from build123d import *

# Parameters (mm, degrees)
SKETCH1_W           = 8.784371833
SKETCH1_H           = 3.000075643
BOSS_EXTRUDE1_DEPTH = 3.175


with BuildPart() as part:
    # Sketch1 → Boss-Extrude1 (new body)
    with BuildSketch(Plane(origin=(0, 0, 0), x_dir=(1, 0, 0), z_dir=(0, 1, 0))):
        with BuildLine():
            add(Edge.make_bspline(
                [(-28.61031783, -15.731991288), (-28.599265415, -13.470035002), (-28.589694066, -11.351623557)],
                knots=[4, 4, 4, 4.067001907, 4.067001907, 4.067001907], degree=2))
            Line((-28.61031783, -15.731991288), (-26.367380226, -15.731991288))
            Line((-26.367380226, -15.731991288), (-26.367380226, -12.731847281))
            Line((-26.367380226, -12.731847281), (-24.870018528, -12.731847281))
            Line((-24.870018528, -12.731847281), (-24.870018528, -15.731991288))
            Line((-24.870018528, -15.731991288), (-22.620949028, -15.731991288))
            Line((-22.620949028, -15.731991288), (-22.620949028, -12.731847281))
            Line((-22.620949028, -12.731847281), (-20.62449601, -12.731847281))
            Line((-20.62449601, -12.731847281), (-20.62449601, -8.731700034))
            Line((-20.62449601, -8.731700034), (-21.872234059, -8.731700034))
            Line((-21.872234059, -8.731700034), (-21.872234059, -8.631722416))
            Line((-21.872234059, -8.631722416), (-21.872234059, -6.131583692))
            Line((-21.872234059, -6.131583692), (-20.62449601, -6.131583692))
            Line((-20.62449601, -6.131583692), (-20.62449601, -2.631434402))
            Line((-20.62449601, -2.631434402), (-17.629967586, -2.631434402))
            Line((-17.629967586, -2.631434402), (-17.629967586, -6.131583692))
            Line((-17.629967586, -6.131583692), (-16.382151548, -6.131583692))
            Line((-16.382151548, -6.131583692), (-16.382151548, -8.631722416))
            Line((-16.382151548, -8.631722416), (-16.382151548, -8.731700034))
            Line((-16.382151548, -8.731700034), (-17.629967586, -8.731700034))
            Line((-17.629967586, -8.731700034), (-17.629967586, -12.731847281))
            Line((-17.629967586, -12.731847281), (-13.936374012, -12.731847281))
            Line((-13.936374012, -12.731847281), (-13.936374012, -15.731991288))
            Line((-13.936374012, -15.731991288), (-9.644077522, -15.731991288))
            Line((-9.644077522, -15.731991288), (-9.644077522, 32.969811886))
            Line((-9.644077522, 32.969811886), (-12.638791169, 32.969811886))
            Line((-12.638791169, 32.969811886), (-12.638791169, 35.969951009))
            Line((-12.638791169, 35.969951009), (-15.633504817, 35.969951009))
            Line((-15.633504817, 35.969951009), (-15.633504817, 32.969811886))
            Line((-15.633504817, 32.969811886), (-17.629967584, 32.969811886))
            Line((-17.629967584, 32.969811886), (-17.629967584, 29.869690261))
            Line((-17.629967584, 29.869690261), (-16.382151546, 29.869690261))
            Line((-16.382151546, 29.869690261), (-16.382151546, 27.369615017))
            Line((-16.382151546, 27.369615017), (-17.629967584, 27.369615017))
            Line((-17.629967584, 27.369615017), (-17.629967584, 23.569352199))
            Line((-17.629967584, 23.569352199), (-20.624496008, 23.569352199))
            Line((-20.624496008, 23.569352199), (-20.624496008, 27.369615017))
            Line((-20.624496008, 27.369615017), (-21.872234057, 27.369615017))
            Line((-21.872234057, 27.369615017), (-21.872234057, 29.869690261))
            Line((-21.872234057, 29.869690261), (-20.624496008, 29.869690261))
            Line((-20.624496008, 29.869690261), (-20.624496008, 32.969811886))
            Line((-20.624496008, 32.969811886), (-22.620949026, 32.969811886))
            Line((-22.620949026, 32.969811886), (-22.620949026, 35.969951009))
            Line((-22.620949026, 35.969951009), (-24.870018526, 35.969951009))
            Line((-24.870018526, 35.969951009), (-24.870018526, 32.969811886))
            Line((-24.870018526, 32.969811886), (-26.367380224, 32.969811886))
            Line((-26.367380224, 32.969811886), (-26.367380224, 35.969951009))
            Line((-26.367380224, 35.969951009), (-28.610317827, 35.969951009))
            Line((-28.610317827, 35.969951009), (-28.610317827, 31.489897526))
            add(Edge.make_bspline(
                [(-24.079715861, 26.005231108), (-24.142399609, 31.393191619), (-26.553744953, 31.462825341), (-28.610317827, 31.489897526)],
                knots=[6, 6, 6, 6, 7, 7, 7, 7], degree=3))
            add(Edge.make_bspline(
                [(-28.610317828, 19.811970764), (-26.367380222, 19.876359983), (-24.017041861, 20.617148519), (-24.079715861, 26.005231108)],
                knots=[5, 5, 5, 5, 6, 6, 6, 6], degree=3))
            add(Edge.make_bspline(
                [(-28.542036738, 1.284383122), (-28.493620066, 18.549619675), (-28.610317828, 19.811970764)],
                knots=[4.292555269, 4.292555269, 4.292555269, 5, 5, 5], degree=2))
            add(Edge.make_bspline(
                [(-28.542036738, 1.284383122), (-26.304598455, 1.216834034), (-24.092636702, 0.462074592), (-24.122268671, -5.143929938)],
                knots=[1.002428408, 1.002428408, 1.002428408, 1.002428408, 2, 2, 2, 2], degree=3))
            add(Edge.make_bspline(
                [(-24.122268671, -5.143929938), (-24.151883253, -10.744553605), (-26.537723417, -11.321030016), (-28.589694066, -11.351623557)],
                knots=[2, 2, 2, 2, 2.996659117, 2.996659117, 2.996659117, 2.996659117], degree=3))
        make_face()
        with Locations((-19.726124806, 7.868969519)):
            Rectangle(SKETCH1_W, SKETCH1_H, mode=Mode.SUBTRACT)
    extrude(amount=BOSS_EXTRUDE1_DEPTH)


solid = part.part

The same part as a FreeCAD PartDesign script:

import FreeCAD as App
import Part
import Sketcher

V = App.Vector
Q = App.Units.Quantity

doc = App.newDocument("Part")
body = doc.addObject("PartDesign::Body", "Body")

sketch1 = doc.addObject("Sketcher::SketchObject", "Sketch")
body.addObject(sketch1)
sketch1.AttachmentSupport = (doc.XZ_Plane, [""])
sketch1.MapMode = "FlatFace"
sketch1.addGeometry([
    Part.BSplineCurve([V(-28.610318, 15.731991, 0), V(-28.599265, 13.470035, 0), V(-28.589694, 11.351624, 0)], [3, 3], [4, 4.067001907], False, 2, [1, 1, 1], False),
    Part.LineSegment(V(-28.610318, 15.731991, 0), V(-26.36738, 15.731991, 0)),
    Part.LineSegment(V(-26.36738, 15.731991, 0), V(-26.36738, 12.731847, 0)),
    Part.LineSegment(V(-26.36738, 12.731847, 0), V(-24.870019, 12.731847, 0)),
    Part.LineSegment(V(-24.870019, 12.731847, 0), V(-24.870019, 15.731991, 0)),
    Part.LineSegment(V(-24.870019, 15.731991, 0), V(-22.620949, 15.731991, 0)),
    Part.LineSegment(V(-22.620949, 15.731991, 0), V(-22.620949, 12.731847, 0)),
    Part.LineSegment(V(-22.620949, 12.731847, 0), V(-20.624496, 12.731847, 0)),
    Part.LineSegment(V(-20.624496, 12.731847, 0), V(-20.624496, 8.7317, 0)),
    Part.LineSegment(V(-20.624496, 8.7317, 0), V(-21.872234, 8.7317, 0)),
    Part.LineSegment(V(-21.872234, 8.7317, 0), V(-21.872234, 6.131584, 0)),
    Part.LineSegment(V(-21.872234, 6.131584, 0), V(-20.624496, 6.131584, 0)),
    Part.LineSegment(V(-20.624496, 6.131584, 0), V(-20.624496, 2.631434, 0)),
    Part.LineSegment(V(-20.624496, 2.631434, 0), V(-17.629968, 2.631434, 0)),
    Part.LineSegment(V(-17.629968, 2.631434, 0), V(-17.629968, 6.131584, 0)),
    Part.LineSegment(V(-17.629968, 6.131584, 0), V(-16.382152, 6.131584, 0)),
    Part.LineSegment(V(-16.382152, 6.131584, 0), V(-16.382152, 8.7317, 0)),
    Part.LineSegment(V(-16.382152, 8.7317, 0), V(-17.629968, 8.7317, 0)),
    Part.LineSegment(V(-17.629968, 8.7317, 0), V(-17.629968, 12.731847, 0)),
    Part.LineSegment(V(-17.629968, 12.731847, 0), V(-13.936374, 12.731847, 0)),
    Part.LineSegment(V(-13.936374, 12.731847, 0), V(-13.936374, 15.731991, 0)),
    Part.LineSegment(V(-13.936374, 15.731991, 0), V(-9.644078, 15.731991, 0)),
    Part.LineSegment(V(-9.644078, 15.731991, 0), V(-9.644078, -32.969812, 0)),
    Part.LineSegment(V(-9.644078, -32.969812, 0), V(-12.638791, -32.969812, 0)),
    Part.LineSegment(V(-12.638791, -32.969812, 0), V(-12.638791, -35.969951, 0)),
    Part.LineSegment(V(-12.638791, -35.969951, 0), V(-15.633505, -35.969951, 0)),
    Part.LineSegment(V(-15.633505, -35.969951, 0), V(-15.633505, -32.969812, 0)),
    Part.LineSegment(V(-15.633505, -32.969812, 0), V(-17.629968, -32.969812, 0)),
    Part.LineSegment(V(-17.629968, -32.969812, 0), V(-17.629968, -29.86969, 0)),
    Part.LineSegment(V(-17.629968, -29.86969, 0), V(-16.382152, -29.86969, 0)),
    Part.LineSegment(V(-16.382152, -29.86969, 0), V(-16.382152, -27.369615, 0)),
    Part.LineSegment(V(-16.382152, -27.369615, 0), V(-17.629968, -27.369615, 0)),
    Part.LineSegment(V(-17.629968, -27.369615, 0), V(-17.629968, -23.569352, 0)),
    Part.LineSegment(V(-17.629968, -23.569352, 0), V(-20.624496, -23.569352, 0)),
    Part.LineSegment(V(-20.624496, -23.569352, 0), V(-20.624496, -27.369615, 0)),
    Part.LineSegment(V(-20.624496, -27.369615, 0), V(-21.872234, -27.369615, 0)),
    Part.LineSegment(V(-21.872234, -27.369615, 0), V(-21.872234, -29.86969, 0)),
    Part.LineSegment(V(-21.872234, -29.86969, 0), V(-20.624496, -29.86969, 0)),
    Part.LineSegment(V(-20.624496, -29.86969, 0), V(-20.624496, -32.969812, 0)),
    Part.LineSegment(V(-20.624496, -32.969812, 0), V(-22.620949, -32.969812, 0)),
    Part.LineSegment(V(-22.620949, -32.969812, 0), V(-22.620949, -35.969951, 0)),
    Part.LineSegment(V(-22.620949, -35.969951, 0), V(-24.870019, -35.969951, 0)),
    Part.LineSegment(V(-24.870019, -35.969951, 0), V(-24.870019, -32.969812, 0)),
    Part.LineSegment(V(-24.870019, -32.969812, 0), V(-26.36738, -32.969812, 0)),
    Part.LineSegment(V(-26.36738, -32.969812, 0), V(-26.36738, -35.969951, 0)),
    Part.LineSegment(V(-26.36738, -35.969951, 0), V(-28.610318, -35.969951, 0)),
    Part.LineSegment(V(-28.610318, -35.969951, 0), V(-28.610318, -31.489898, 0)),
    Part.BSplineCurve([V(-24.079716, -26.005231, 0), V(-24.1424, -31.393192, 0), V(-26.553745, -31.462825, 0), V(-28.610318, -31.489898, 0)], [4, 4], [6, 7], False, 3, [1, 1, 1, 1], False),
    Part.BSplineCurve([V(-28.610318, -19.811971, 0), V(-26.36738, -19.87636, 0), V(-24.017042, -20.617149, 0), V(-24.079716, -26.005231, 0)], [4, 4], [5, 6], False, 3, [1, 1, 1, 1], False),
    Part.BSplineCurve([V(-28.542037, -1.284383, 0), V(-28.49362, -18.54962, 0), V(-28.610318, -19.811971, 0)], [3, 3], [4.292555269, 5], False, 2, [1, 1, 1], False),
    Part.BSplineCurve([V(-28.542037, -1.284383, 0), V(-26.304598, -1.216834, 0), V(-24.092637, -0.462075, 0), V(-24.122269, 5.14393, 0)], [4, 4], [1.002428408, 2], False, 3, [1, 1, 1, 1], False),
    Part.BSplineCurve([V(-24.122269, 5.14393, 0), V(-24.151883, 10.744554, 0), V(-26.537723, 11.32103, 0), V(-28.589694, 11.351624, 0)], [4, 4], [2, 2.996659117], False, 3, [1, 1, 1, 1], False),
    Part.LineSegment(V(-24.118311, -6.368932, 0), V(-24.118311, -9.369007, 0)),
    Part.LineSegment(V(-24.118311, -9.369007, 0), V(-15.333939, -9.369007, 0)),
    Part.LineSegment(V(-15.333939, -9.369007, 0), V(-15.333939, -6.368932, 0)),
    Part.LineSegment(V(-15.333939, -6.368932, 0), V(-24.118311, -6.368932, 0)),
], False)
sketch1.addConstraint([
    Sketcher.Constraint("Block", 0),
    Sketcher.Constraint("Block", 47),
    Sketcher.Constraint("Block", 48),
    Sketcher.Constraint("Block", 49),
    Sketcher.Constraint("Block", 50),
    Sketcher.Constraint("Block", 51),
    Sketcher.Constraint("Coincident", 0, 1, 1, 1),
    Sketcher.Constraint("Coincident", 1, 2, 2, 1),
    Sketcher.Constraint("Coincident", 2, 2, 3, 1),
    Sketcher.Constraint("Coincident", 3, 2, 4, 1),
    Sketcher.Constraint("Coincident", 4, 2, 5, 1),
    Sketcher.Constraint("Coincident", 5, 2, 6, 1),
    Sketcher.Constraint("Coincident", 6, 2, 7, 1),
    Sketcher.Constraint("Coincident", 7, 2, 8, 1),
    Sketcher.Constraint("Coincident", 8, 2, 9, 1),
    Sketcher.Constraint("Coincident", 9, 2, 10, 1),
    Sketcher.Constraint("Coincident", 10, 2, 11, 1),
    Sketcher.Constraint("Coincident", 11, 2, 12, 1),
    Sketcher.Constraint("Coincident", 12, 2, 13, 1),
    Sketcher.Constraint("Coincident", 13, 2, 14, 1),
    Sketcher.Constraint("Coincident", 14, 2, 15, 1),
    Sketcher.Constraint("Coincident", 15, 2, 16, 1),
    Sketcher.Constraint("Coincident", 16, 2, 17, 1),
    Sketcher.Constraint("Coincident", 17, 2, 18, 1),
    Sketcher.Constraint("Coincident", 18, 2, 19, 1),
    Sketcher.Constraint("Coincident", 19, 2, 20, 1),
    Sketcher.Constraint("Coincident", 20, 2, 21, 1),
    Sketcher.Constraint("Coincident", 21, 2, 22, 1),
    Sketcher.Constraint("Coincident", 22, 2, 23, 1),
    Sketcher.Constraint("Coincident", 23, 2, 24, 1),
    Sketcher.Constraint("Coincident", 24, 2, 25, 1),
    Sketcher.Constraint("Coincident", 25, 2, 26, 1),
    Sketcher.Constraint("Coincident", 26, 2, 27, 1),
    Sketcher.Constraint("Coincident", 27, 2, 28, 1),
    Sketcher.Constraint("Coincident", 28, 2, 29, 1),
    Sketcher.Constraint("Coincident", 29, 2, 30, 1),
    Sketcher.Constraint("Coincident", 30, 2, 31, 1),
    Sketcher.Constraint("Coincident", 31, 2, 32, 1),
    Sketcher.Constraint("Coincident", 32, 2, 33, 1),
    Sketcher.Constraint("Coincident", 33, 2, 34, 1),
    Sketcher.Constraint("Coincident", 34, 2, 35, 1),
    Sketcher.Constraint("Coincident", 35, 2, 36, 1),
    Sketcher.Constraint("Coincident", 36, 2, 37, 1),
    Sketcher.Constraint("Coincident", 37, 2, 38, 1),
    Sketcher.Constraint("Coincident", 38, 2, 39, 1),
    Sketcher.Constraint("Coincident", 39, 2, 40, 1),
    Sketcher.Constraint("Coincident", 40, 2, 41, 1),
    Sketcher.Constraint("Coincident", 41, 2, 42, 1),
    Sketcher.Constraint("Coincident", 42, 2, 43, 1),
    Sketcher.Constraint("Coincident", 43, 2, 44, 1),
    Sketcher.Constraint("Coincident", 44, 2, 45, 1),
    Sketcher.Constraint("Coincident", 45, 2, 46, 1),
    Sketcher.Constraint("Coincident", 46, 2, 47, 2),
    Sketcher.Constraint("Coincident", 52, 2, 53, 1),
    Sketcher.Constraint("Coincident", 53, 2, 54, 1),
    Sketcher.Constraint("Coincident", 54, 2, 55, 1),
    Sketcher.Constraint("Coincident", 55, 2, 52, 1),
    Sketcher.Constraint("Horizontal", 1),
    Sketcher.Constraint("Vertical", 2),
    Sketcher.Constraint("Horizontal", 3),
    Sketcher.Constraint("Vertical", 4),
    Sketcher.Constraint("Horizontal", 5),
    Sketcher.Constraint("Vertical", 6),
    Sketcher.Constraint("Horizontal", 7),
    Sketcher.Constraint("Vertical", 8),
    Sketcher.Constraint("Horizontal", 9),
    Sketcher.Constraint("Vertical", 10),
    Sketcher.Constraint("Horizontal", 11),
    Sketcher.Constraint("Vertical", 12),
    Sketcher.Constraint("Horizontal", 13),
    Sketcher.Constraint("Vertical", 14),
    Sketcher.Constraint("Horizontal", 15),
    Sketcher.Constraint("Vertical", 16),
    Sketcher.Constraint("Horizontal", 17),
    Sketcher.Constraint("Vertical", 18),
    Sketcher.Constraint("Horizontal", 19),
    Sketcher.Constraint("Vertical", 20),
    Sketcher.Constraint("Horizontal", 21),
    Sketcher.Constraint("Vertical", 22),
    Sketcher.Constraint("Horizontal", 23),
    Sketcher.Constraint("Vertical", 24),
    Sketcher.Constraint("Horizontal", 25),
    Sketcher.Constraint("Vertical", 26),
    Sketcher.Constraint("Horizontal", 27),
    Sketcher.Constraint("Vertical", 28),
    Sketcher.Constraint("Horizontal", 29),
    Sketcher.Constraint("Vertical", 30),
    Sketcher.Constraint("Horizontal", 31),
    Sketcher.Constraint("Vertical", 32),
    Sketcher.Constraint("Horizontal", 33),
    Sketcher.Constraint("Vertical", 34),
    Sketcher.Constraint("Horizontal", 35),
    Sketcher.Constraint("Vertical", 36),
    Sketcher.Constraint("Horizontal", 37),
    Sketcher.Constraint("Vertical", 38),
    Sketcher.Constraint("Horizontal", 39),
    Sketcher.Constraint("Vertical", 40),
    Sketcher.Constraint("Horizontal", 41),
    Sketcher.Constraint("Vertical", 42),
    Sketcher.Constraint("Horizontal", 43),
    Sketcher.Constraint("Vertical", 44),
    Sketcher.Constraint("Horizontal", 45),
    Sketcher.Constraint("Vertical", 46),
    Sketcher.Constraint("Vertical", 52),
    Sketcher.Constraint("Horizontal", 53),
    Sketcher.Constraint("Vertical", 54),
    Sketcher.Constraint("Horizontal", 55),
    Sketcher.Constraint("Horizontal", 1, 2, 4, 2),
    Sketcher.Constraint("Horizontal", 3, 2, 6, 2),
    Sketcher.Constraint("Horizontal", 11, 2, 14, 2),
    Sketcher.Constraint("Horizontal", 9, 2, 16, 2),
    Sketcher.Constraint("Horizontal", 7, 2, 18, 2),
    Sketcher.Constraint("Horizontal", 5, 2, 20, 2),
    Sketcher.Constraint("Horizontal", 23, 2, 26, 2),
    Sketcher.Constraint("Horizontal", 31, 2, 34, 2),
    Sketcher.Constraint("Horizontal", 29, 2, 36, 2),
    Sketcher.Constraint("Horizontal", 27, 2, 38, 2),
    Sketcher.Constraint("Horizontal", 25, 2, 40, 2),
    Sketcher.Constraint("Horizontal", 39, 2, 42, 2),
    Sketcher.Constraint("Horizontal", 41, 2, 44, 2),
    Sketcher.Constraint("Vertical", 8, 2, 11, 2),
    Sketcher.Constraint("Vertical", 14, 2, 17, 2),
    Sketcher.Constraint("Vertical", 18, 2, 27, 2),
    Sketcher.Constraint("Vertical", 16, 2, 29, 2),
    Sketcher.Constraint("Vertical", 28, 2, 31, 2),
    Sketcher.Constraint("Vertical", 12, 2, 33, 2),
    Sketcher.Constraint("Vertical", 10, 2, 35, 2),
    Sketcher.Constraint("Vertical", 34, 2, 37, 2),
    Sketcher.Constraint("Vertical", 6, 2, 39, 2),
    Sketcher.Constraint("Vertical", 4, 2, 41, 2),
    Sketcher.Constraint("Vertical", 2, 2, 43, 2),
    Sketcher.Constraint("Equal", 23, 25),
    Sketcher.Constraint("DistanceX", 12, 2, 22, 2, Q("0.4322999 in")),
    Sketcher.Constraint("DistanceX", 3, 1, 3, 2, Q("1.497362 mm")),
    Sketcher.Constraint("DistanceX", 5, 1, 5, 2, Q("2.24907 mm")),
    Sketcher.Constraint("DistanceX", 9, 2, 9, 1, Q("1.247738 mm")),
    Sketcher.Constraint("DistanceX", 13, 1, 13, 2, Q("2.994528 mm")),
    Sketcher.Constraint("DistanceX", 53, 1, 53, 2, Q("8.784372 mm")),
    Sketcher.Constraint("DistanceY", 12, 2, 12, 1, Q("3.500149 mm")),
    Sketcher.Constraint("DistanceY", 24, 2, 24, 1, Q("3.000139 mm")),
    Sketcher.Constraint("DistanceY", 28, 1, 28, 2, Q("3.100122 mm")),
    Sketcher.Constraint("DistanceY", -1, 1, 8, 2, Q("8.7317 mm")),
    Sketcher.Constraint("DistanceX", 45, 2, 41, 2, Q("3.740299 mm")),
    Sketcher.Constraint("DistanceX", 7, 1, 7, 2, Q("1.996453 mm")),
    Sketcher.Constraint("DistanceX", 15, 1, 15, 2, Q("1.247816 mm")),
    Sketcher.Constraint("DistanceX", 19, 1, 19, 2, Q("3.693594 mm")),
    Sketcher.Constraint("DistanceX", 23, 2, 23, 1, Q("2.994714 mm")),
    Sketcher.Constraint("DistanceY", 2, 2, 2, 1, Q("3.000144 mm")),
    Sketcher.Constraint("DistanceY", 10, 2, 10, 1, Q("2.600116 mm")),
    Sketcher.Constraint("DistanceY", 22, 2, 22, 1, Q("48.701803 mm")),
    Sketcher.Constraint("DistanceY", 30, 1, 30, 2, Q("2.500075 mm")),
    Sketcher.Constraint("DistanceY", 32, 1, 32, 2, Q("3.800263 mm")),
    Sketcher.Constraint("DistanceY", 52, 2, 52, 1, Q("3.000076 mm")),
    Sketcher.Constraint("DistanceX", 52, 2, -1, 1, Q("24.118311 mm")),
    Sketcher.Constraint("DistanceY", 54, 2, -1, 1, Q("6.368932 mm")),
])
pad1 = doc.addObject("PartDesign::Pad", "Pad")
body.addObject(pad1)
pad1.Profile = sketch1
pad1.Length = Q("0.125 in")
pad1.Reversed = True

doc.recompute()
